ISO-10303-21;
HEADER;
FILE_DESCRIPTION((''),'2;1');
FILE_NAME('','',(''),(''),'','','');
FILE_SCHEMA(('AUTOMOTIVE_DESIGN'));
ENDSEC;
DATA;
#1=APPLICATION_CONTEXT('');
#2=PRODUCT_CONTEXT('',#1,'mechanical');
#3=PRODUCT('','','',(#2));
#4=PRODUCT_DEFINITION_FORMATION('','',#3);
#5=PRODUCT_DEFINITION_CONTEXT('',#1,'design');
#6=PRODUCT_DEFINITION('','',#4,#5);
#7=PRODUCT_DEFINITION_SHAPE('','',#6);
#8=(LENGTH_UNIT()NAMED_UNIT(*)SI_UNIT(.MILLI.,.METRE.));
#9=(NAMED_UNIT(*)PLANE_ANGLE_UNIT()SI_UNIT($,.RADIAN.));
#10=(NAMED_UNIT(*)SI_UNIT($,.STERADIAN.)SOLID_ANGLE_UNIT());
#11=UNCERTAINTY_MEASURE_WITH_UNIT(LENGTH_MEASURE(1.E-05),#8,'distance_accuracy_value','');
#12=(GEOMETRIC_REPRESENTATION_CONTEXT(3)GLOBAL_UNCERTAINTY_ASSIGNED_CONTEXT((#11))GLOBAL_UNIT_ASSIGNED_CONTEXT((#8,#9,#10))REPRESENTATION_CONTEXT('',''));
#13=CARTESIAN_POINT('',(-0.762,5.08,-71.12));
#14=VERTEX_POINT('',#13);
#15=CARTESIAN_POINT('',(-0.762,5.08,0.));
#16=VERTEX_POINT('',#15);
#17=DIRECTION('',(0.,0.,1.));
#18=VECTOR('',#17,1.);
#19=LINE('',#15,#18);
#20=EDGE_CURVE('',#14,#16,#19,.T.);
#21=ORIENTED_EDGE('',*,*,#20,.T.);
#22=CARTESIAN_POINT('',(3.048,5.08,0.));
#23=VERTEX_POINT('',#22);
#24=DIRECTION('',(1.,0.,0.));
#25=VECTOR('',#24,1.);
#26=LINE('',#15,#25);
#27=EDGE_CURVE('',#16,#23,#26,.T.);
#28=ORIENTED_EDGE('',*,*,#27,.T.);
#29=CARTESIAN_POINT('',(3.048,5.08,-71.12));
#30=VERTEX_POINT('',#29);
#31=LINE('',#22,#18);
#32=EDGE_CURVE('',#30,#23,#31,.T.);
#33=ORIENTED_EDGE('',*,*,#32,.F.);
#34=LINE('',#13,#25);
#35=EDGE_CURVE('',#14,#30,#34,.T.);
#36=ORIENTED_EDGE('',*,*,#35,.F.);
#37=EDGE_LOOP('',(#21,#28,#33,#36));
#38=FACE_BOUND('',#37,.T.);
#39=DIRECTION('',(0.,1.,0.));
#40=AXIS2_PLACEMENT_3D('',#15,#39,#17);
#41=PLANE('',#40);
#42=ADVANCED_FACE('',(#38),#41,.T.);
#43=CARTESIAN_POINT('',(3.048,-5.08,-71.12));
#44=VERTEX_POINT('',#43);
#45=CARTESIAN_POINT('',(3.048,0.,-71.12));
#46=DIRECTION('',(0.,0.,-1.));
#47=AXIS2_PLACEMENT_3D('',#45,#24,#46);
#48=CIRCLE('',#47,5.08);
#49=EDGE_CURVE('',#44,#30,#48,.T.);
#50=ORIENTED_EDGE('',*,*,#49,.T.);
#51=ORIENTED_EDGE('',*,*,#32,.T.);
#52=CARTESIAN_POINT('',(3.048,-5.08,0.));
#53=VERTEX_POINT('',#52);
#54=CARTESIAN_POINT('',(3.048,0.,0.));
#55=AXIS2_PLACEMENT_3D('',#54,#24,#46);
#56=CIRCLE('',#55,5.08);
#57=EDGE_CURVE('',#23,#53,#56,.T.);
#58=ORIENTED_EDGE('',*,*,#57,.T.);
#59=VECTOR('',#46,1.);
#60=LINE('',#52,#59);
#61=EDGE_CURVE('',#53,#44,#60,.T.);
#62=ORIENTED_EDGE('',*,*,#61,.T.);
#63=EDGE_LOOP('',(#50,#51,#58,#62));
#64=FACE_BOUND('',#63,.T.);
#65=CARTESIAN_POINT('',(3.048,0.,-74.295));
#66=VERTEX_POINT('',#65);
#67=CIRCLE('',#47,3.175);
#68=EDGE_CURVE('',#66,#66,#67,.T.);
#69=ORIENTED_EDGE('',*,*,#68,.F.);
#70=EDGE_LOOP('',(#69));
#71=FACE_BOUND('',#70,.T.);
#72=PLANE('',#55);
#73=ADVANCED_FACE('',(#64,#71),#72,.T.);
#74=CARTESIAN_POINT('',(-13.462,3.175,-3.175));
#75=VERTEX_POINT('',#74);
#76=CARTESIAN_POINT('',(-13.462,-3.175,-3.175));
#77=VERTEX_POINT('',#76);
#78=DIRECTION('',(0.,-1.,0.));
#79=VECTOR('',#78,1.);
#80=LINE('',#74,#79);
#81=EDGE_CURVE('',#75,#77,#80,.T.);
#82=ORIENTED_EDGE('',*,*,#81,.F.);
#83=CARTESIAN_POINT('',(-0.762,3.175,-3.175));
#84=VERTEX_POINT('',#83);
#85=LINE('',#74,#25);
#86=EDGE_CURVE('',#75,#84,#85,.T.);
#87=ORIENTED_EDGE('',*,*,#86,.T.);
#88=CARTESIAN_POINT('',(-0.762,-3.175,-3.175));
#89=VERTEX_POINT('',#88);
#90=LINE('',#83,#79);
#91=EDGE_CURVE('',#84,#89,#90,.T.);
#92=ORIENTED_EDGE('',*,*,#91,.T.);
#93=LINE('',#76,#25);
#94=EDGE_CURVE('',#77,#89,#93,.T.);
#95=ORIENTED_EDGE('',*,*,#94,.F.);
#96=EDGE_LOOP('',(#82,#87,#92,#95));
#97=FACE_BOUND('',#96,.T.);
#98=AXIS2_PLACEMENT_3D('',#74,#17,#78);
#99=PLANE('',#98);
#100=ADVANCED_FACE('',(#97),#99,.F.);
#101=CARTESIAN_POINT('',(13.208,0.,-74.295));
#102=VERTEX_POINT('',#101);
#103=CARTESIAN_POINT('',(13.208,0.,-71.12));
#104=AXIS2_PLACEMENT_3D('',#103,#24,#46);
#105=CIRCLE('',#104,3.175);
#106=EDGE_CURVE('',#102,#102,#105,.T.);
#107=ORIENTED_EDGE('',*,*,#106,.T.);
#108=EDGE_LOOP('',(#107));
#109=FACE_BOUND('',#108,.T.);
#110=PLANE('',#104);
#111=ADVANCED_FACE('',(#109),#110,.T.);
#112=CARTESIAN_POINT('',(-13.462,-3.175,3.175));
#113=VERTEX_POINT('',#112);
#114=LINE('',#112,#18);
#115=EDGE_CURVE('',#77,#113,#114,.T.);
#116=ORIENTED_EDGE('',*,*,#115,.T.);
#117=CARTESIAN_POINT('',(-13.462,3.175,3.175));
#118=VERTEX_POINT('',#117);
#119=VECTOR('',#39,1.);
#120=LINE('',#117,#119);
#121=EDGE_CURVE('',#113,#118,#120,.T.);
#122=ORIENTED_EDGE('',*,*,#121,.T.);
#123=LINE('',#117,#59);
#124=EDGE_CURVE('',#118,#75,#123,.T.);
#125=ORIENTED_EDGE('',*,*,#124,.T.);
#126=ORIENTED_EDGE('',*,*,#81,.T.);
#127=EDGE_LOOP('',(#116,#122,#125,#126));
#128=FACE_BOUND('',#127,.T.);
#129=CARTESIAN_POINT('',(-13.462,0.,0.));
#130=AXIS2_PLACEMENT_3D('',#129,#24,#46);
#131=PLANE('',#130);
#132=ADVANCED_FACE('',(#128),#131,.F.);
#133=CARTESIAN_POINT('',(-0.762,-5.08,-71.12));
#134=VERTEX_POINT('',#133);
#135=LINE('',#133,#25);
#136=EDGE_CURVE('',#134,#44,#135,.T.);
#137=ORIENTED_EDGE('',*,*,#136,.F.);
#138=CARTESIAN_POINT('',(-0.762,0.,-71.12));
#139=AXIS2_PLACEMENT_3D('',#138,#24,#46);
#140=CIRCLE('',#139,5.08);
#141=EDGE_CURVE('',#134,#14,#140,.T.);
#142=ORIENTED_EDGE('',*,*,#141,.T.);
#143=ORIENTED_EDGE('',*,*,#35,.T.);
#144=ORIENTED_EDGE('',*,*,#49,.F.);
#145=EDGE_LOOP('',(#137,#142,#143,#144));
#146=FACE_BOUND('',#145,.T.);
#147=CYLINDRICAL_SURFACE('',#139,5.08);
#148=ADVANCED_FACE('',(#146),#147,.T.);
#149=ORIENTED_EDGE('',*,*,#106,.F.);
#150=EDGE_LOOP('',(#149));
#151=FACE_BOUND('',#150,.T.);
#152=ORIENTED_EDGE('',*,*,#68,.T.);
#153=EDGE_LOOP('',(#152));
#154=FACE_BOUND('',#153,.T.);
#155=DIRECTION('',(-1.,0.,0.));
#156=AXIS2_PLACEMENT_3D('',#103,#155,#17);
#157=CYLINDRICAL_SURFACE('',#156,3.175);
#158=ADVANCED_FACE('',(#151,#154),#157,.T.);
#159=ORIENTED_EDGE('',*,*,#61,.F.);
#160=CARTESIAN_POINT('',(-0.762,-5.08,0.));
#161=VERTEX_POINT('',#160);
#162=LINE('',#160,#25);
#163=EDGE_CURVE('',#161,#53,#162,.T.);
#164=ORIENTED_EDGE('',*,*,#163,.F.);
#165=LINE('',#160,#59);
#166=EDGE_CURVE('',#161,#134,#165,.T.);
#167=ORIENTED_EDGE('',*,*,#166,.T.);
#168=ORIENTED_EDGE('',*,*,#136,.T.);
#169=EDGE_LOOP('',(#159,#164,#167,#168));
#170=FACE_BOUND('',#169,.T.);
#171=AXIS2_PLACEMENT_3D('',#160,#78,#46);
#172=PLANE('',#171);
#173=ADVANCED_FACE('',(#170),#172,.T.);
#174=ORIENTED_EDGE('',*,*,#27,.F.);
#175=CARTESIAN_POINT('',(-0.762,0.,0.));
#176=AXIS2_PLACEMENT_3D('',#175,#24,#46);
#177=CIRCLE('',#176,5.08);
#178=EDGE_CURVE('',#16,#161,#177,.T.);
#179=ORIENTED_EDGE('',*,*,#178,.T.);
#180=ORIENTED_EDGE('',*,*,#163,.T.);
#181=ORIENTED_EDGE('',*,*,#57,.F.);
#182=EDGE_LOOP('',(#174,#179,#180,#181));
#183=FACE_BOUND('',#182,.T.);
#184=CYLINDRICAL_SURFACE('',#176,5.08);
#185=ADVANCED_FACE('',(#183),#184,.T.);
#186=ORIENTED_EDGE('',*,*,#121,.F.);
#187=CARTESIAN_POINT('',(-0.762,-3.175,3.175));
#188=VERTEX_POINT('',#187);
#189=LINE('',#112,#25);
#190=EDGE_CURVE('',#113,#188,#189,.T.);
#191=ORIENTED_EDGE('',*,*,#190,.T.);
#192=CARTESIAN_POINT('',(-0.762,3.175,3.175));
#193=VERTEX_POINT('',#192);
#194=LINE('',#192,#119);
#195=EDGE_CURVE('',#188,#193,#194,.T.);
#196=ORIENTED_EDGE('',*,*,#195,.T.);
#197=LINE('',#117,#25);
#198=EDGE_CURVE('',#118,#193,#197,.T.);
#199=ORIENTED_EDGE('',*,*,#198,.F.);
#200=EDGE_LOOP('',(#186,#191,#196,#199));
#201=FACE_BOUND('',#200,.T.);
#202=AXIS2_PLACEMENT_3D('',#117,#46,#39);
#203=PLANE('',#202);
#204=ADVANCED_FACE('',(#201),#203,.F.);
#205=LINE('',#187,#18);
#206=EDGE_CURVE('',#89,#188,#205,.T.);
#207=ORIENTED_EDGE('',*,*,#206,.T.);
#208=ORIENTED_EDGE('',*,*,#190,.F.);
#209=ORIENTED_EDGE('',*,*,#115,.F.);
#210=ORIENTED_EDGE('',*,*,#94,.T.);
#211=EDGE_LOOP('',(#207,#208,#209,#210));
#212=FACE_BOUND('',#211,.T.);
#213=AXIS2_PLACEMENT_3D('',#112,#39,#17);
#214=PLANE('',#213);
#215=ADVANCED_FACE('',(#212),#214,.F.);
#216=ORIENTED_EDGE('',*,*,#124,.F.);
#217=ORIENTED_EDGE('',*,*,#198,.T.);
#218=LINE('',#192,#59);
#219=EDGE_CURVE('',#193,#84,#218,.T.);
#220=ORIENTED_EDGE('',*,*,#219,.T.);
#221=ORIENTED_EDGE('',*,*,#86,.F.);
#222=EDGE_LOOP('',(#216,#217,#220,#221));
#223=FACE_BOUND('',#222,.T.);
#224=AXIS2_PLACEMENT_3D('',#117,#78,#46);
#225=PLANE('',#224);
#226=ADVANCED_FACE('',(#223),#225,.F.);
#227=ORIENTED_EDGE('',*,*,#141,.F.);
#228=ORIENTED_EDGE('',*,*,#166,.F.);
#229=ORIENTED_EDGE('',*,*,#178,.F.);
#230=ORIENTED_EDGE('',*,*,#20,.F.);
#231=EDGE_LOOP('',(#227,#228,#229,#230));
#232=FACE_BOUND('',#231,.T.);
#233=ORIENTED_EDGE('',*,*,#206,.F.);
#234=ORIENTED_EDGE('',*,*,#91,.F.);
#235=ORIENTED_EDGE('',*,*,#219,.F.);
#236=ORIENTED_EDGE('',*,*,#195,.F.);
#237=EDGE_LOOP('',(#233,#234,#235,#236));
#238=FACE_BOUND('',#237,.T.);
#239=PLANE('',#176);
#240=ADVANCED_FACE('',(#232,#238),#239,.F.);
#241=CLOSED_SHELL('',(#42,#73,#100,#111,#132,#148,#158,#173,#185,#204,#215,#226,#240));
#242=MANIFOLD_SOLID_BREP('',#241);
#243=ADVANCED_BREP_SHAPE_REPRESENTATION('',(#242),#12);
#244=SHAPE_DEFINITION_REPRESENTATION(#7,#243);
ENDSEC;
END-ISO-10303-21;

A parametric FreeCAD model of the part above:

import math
import FreeCAD as App
import Part
import Sketcher

V = App.Vector
Q = App.Units.Quantity

doc = App.newDocument("Part")
body = doc.addObject("PartDesign::Body", "Body")

sketch1 = body.newObject("Sketcher::SketchObject", "Sketch")
sketch1.AttachmentSupport = (doc.getObject("YZ_Plane"), [""])
sketch1.MapMode = "FlatFace"
sketch1.addGeometry(Part.Circle(V(0, 0, 0), V(0, 0, 1), 3.8), False)
sketch1.addConstraint([
    Sketcher.Constraint("Coincident", 0, 3, -1, 1),
    Sketcher.Constraint("Diameter", 0, Q("0.3 in")),
])
pad1 = body.newObject("PartDesign::Pad", "Pad")
pad1.Profile = sketch1
pad1.Length = Q("0.12 in")

sketch2 = body.newObject("Sketcher::SketchObject", "Sketch001")
sketch2.AttachmentSupport = (doc.getObject("YZ_Plane"), [""])
sketch2.MapMode = "FlatFace"
sketch2.AttachmentOffset = App.Placement(V(0, 0, 0.12 * 25.4), App.Rotation())
sketch2.addGeometry([
    Part.LineSegment(V(5, -71, 0), V(5, 0, 0)),
    Part.ArcOfCircle(Part.Circle(V(0, 0, 0), V(0, 0, 1), 5), math.radians(0), math.radians(180)),
    Part.LineSegment(V(-5, 0, 0), V(-5, -71, 0)),
    Part.ArcOfCircle(Part.Circle(V(0, -71, 0), V(0, 0, 1), 5), math.radians(180), math.radians(360)),
], False)
sketch2.addConstraint([
    Sketcher.Constraint("Tangent", 0, 2, 1, 1),
    Sketcher.Constraint("Tangent", 1, 2, 2, 1),
    Sketcher.Constraint("Tangent", 2, 2, 3, 1),
    Sketcher.Constraint("Tangent", 3, 2, 0, 1),
    Sketcher.Constraint("Vertical", 0),
    Sketcher.Constraint("Vertical", 2),
    Sketcher.Constraint("Coincident", 1, 3, -1, 1),
    Sketcher.Constraint("Radius", 1, Q("0.2 in")),
    Sketcher.Constraint("DistanceY", 0, 1, 0, 2, Q("2.8 in")),
])
pad2 = body.newObject("PartDesign::Pad", "Pad001")
pad2.Profile = sketch2
pad2.Length = Q("0.15 in")
pad2.Reversed = True

sketch3 = body.newObject("Sketcher::SketchObject", "Sketch002")
sketch3.AttachmentSupport = (doc.getObject("YZ_Plane"), [""])
sketch3.MapMode = "FlatFace"
sketch3.AttachmentOffset = App.Placement(V(0, 0, 0.12 * 25.4), App.Rotation())
sketch3.addGeometry(Part.Circle(V(0, -71.1, 0), V(0, 0, 1), 3.2), False)
sketch3.addConstraint([
    Sketcher.Constraint("PointOnObject", 0, 3, -2),
    Sketcher.Constraint("Diameter", 0, Q("0.25 in")),
    Sketcher.Constraint("DistanceY", 0, 3, -1, 1, Q("2.8 in")),
])
pad3 = body.newObject("PartDesign::Pad", "Pad002")
pad3.Profile = sketch3
pad3.Length = Q("0.4 in")

sketch4 = body.newObject("Sketcher::SketchObject", "Sketch003")
sketch4.AttachmentSupport = (doc.getObject("YZ_Plane"), [""])
sketch4.MapMode = "FlatFace"
sketch4.AttachmentOffset = App.Placement(V(0, 0, -0.03 * 25.4), App.Rotation())
sketch4.addGeometry([
    Part.LineSegment(V(3, -3, 0), V(-3, -3, 0)),
    Part.LineSegment(V(-3, -3, 0), V(-3, 3, 0)),
    Part.LineSegment(V(-3, 3, 0), V(3, 3, 0)),
    Part.LineSegment(V(3, 3, 0), V(3, -3, 0)),
], False)
sketch4.addConstraint([
    Sketcher.Constraint("Coincident", 0, 2, 1, 1),
    Sketcher.Constraint("Coincident", 1, 2, 2, 1),
    Sketcher.Constraint("Coincident", 2, 2, 3, 1),
    Sketcher.Constraint("Coincident", 3, 2, 0, 1),
    Sketcher.Constraint("Horizontal", 0),
    Sketcher.Constraint("Vertical", 1),
    Sketcher.Constraint("Horizontal", 2),
    Sketcher.Constraint("Vertical", 3),
    Sketcher.Constraint("Symmetric", 0, 2, 2, 2, -1, 1),
    Sketcher.Constraint("Equal", 2, 1),
    Sketcher.Constraint("DistanceX", 0, 2, 0, 1, Q("0.25 in")),
])
pad4 = body.newObject("PartDesign::Pad", "Pad003")
pad4.Profile = sketch4
pad4.Length = Q("0.5 in")
pad4.Reversed = True

doc.recompute()
